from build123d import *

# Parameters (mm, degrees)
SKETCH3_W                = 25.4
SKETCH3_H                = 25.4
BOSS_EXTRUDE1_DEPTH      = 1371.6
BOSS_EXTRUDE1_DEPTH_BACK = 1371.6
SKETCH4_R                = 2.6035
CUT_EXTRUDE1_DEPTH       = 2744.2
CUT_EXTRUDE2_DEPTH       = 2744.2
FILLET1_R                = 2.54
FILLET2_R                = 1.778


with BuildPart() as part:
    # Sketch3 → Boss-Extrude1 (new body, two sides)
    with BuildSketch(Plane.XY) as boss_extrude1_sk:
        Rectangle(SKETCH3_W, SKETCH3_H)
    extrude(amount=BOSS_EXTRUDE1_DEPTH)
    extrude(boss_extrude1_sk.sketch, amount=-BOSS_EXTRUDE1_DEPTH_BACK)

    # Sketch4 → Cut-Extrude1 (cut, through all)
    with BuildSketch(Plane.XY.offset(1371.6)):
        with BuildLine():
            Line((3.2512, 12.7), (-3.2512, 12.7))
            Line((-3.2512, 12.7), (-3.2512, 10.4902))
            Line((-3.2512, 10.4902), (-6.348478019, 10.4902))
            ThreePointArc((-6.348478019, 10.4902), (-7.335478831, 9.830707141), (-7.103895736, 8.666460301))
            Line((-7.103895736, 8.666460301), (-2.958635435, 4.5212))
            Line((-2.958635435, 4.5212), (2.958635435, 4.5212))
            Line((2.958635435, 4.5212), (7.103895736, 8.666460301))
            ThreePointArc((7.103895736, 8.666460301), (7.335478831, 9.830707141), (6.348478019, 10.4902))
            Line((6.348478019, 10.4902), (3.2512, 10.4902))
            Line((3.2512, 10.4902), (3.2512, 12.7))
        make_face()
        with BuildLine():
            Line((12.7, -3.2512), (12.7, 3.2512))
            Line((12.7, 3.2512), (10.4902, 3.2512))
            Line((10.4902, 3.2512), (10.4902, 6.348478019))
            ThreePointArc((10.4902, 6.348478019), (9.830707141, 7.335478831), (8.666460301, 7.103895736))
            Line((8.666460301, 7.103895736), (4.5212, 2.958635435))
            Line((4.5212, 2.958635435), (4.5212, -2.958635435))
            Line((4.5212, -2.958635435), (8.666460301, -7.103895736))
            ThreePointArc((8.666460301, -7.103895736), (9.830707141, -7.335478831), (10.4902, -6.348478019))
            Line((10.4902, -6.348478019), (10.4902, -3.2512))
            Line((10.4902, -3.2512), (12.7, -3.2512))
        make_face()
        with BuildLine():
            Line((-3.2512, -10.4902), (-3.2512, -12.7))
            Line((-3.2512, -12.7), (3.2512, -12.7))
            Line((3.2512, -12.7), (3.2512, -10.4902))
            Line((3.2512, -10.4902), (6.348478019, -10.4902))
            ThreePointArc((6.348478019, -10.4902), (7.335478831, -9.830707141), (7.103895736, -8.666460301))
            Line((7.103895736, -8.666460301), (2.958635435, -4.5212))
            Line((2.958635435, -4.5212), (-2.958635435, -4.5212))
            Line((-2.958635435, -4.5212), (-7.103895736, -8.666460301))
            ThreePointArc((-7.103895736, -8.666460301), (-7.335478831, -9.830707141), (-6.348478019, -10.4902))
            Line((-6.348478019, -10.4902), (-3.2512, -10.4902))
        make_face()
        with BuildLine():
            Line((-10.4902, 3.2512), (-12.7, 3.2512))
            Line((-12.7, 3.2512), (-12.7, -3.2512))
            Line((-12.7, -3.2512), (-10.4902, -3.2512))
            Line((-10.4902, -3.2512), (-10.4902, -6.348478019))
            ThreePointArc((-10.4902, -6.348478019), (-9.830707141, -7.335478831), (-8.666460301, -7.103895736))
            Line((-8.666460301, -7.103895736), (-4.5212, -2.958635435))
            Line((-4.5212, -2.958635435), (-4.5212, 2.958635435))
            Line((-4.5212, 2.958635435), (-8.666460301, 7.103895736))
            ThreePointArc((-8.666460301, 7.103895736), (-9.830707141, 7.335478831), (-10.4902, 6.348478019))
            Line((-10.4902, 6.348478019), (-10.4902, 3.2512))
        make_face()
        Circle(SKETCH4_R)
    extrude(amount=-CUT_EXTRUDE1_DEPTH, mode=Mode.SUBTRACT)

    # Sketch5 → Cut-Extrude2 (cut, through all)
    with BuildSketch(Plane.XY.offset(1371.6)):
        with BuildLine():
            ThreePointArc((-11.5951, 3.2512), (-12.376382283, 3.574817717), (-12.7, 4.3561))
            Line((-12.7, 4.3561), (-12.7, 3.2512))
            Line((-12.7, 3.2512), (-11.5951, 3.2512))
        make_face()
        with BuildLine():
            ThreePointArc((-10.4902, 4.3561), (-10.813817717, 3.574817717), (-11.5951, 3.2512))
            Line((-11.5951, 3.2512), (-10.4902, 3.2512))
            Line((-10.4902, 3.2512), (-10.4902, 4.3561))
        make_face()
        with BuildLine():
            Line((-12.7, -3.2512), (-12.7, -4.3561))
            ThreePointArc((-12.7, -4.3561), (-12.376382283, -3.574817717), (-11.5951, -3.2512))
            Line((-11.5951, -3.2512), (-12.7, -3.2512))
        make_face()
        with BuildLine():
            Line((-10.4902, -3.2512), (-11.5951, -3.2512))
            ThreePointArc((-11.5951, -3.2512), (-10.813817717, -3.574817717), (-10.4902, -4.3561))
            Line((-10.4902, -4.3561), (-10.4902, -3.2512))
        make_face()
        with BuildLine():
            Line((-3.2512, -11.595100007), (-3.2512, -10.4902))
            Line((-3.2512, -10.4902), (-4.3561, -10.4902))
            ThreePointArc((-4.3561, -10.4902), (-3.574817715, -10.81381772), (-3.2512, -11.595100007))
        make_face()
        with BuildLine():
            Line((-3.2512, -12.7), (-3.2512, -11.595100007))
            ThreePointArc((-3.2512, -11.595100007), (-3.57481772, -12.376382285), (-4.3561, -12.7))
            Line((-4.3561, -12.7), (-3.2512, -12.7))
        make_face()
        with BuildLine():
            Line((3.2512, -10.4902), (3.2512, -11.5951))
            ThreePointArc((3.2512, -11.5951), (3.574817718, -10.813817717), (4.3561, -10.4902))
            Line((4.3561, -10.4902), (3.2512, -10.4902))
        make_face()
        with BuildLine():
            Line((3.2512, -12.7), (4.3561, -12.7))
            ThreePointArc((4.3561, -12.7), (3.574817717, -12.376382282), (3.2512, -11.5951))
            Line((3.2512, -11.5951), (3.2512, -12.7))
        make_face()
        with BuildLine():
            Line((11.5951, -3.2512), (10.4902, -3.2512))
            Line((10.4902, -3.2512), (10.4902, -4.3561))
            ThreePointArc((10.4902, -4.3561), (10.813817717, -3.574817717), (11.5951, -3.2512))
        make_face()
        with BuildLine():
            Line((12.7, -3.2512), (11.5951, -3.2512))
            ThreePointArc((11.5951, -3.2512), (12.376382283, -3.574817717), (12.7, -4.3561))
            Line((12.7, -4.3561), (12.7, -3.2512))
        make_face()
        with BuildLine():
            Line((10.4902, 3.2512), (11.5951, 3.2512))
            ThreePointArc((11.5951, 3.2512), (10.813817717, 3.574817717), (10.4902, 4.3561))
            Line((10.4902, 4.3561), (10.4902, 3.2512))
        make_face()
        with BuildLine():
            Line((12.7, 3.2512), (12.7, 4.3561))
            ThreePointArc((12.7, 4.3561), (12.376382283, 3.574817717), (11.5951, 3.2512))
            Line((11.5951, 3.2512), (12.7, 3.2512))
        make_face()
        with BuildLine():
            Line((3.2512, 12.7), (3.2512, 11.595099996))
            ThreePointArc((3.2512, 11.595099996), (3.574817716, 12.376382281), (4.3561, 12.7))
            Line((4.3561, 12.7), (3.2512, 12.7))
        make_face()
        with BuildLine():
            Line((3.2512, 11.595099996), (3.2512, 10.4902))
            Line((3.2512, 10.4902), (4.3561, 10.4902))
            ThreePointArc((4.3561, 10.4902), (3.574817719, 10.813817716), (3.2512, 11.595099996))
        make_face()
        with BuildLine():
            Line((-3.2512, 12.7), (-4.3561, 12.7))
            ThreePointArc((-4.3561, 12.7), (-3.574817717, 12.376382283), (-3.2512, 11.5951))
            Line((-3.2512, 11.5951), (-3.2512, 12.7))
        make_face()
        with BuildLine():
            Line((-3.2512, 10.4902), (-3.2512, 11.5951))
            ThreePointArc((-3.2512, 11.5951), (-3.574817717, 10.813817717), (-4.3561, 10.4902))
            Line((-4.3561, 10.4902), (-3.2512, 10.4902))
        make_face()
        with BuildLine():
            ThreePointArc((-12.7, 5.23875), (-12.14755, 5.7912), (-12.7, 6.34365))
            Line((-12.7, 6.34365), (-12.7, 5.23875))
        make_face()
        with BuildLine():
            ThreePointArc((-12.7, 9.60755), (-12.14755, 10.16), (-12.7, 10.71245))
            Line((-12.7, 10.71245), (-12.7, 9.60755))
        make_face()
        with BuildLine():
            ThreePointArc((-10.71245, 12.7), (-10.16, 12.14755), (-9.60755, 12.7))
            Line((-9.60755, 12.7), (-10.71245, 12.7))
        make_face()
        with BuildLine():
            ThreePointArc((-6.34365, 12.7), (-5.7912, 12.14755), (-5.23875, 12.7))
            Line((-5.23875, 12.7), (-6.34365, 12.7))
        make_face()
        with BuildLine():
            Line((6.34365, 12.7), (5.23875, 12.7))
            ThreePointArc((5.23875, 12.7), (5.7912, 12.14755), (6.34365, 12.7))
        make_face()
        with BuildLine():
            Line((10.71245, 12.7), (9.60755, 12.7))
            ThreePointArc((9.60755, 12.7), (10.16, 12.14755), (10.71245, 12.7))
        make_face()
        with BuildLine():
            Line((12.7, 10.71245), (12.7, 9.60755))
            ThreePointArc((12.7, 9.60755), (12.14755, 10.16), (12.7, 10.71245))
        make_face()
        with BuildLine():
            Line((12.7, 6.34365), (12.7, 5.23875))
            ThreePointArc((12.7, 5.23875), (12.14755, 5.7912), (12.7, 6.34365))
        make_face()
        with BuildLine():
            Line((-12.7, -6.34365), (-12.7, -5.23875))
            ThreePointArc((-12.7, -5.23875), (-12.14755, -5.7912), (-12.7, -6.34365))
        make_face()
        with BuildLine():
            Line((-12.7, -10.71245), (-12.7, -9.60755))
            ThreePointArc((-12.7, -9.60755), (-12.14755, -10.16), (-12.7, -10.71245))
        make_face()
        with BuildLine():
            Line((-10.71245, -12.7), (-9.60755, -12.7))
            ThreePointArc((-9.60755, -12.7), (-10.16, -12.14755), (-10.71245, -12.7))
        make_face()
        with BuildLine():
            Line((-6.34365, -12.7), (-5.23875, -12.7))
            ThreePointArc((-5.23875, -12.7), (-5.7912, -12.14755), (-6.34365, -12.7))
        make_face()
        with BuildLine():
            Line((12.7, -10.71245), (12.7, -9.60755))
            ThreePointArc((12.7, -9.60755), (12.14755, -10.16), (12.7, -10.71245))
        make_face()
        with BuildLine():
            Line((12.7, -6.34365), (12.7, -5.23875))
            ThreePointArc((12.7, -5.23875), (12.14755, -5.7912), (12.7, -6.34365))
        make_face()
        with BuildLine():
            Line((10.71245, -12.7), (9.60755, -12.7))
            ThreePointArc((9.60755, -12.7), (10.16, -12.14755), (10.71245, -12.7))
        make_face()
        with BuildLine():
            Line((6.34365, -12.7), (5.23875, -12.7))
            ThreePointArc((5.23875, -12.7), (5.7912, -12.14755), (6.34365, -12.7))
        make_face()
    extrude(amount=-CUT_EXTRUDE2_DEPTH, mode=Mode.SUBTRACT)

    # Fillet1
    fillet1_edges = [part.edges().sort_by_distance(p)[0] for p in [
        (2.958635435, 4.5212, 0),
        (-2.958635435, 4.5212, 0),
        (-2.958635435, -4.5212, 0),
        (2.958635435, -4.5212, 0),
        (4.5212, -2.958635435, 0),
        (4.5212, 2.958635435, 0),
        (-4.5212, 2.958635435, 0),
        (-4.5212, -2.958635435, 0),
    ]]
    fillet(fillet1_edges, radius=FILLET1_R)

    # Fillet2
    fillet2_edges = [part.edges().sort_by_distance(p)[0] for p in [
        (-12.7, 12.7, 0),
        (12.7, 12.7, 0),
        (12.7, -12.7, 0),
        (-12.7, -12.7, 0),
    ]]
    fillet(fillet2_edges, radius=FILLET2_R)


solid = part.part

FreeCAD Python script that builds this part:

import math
import FreeCAD as App
import Part
import Sketcher
from FreeCAD import Vector
Q = App.Units.Quantity


def edges_at(feature, points):
    """Names of the edges that pass closest to the given points."""
    edges = feature.Shape.Edges
    near = lambda p: min(range(len(edges)), key=lambda i: edges[i].distToShape(Part.Vertex(*p))[0])
    return sorted({f"Edge{near(p) + 1}" for p in points})


def add_polygon(sketch, points):
    """Adds a closed chain of lines whose ends are joined by coincident constraints."""
    first, n = sketch.GeometryCount, len(points)
    for a, b in zip(points, points[1:] + points[:1]):
        sketch.addGeometry(Part.LineSegment(App.Vector(*a, 0), App.Vector(*b, 0)), False)
    for i in range(n):
        sketch.addConstraint(Sketcher.Constraint("Coincident", first + i, 2, first + (i + 1) % n, 1))

doc = App.newDocument("Part")
body = doc.addObject("PartDesign::Body", "Body")

# Sketch on XY plane
sketch1 = body.newObject("Sketcher::SketchObject", "Sketch")
sketch1.AttachmentSupport = (doc.getObject("XY_Plane"), [""])
sketch1.MapMode = "FlatFace"
add_polygon(sketch1, [(-13, 13), (-13, -13), (13, -13), (13, 13)])  # lines 0-3
sketch1.addConstraint([
    Sketcher.Constraint("Vertical", 0),
    Sketcher.Constraint("Horizontal", 1),
    Sketcher.Constraint("Vertical", 2),
    Sketcher.Constraint("Horizontal", 3),
    Sketcher.Constraint("Symmetric", 0, 2, 2, 2, -1, 1),
    Sketcher.Constraint("Equal", 3, 0),
    Sketcher.Constraint("DistanceX", 1, 1, 1, 2, Q("1 in")),
])
pad1 = body.newObject("PartDesign::Pad", "Pad")
pad1.Profile = sketch1
pad1.Type = "TwoLengths"
pad1.Length = Q("54 in")
pad1.Length2 = Q("54 in")

# Sketch on XY plane
sketch2 = body.newObject("Sketcher::SketchObject", "Sketch001")
sketch2.AttachmentSupport = (doc.getObject("XY_Plane"), [""])
sketch2.MapMode = "FlatFace"
sketch2.AttachmentOffset = App.Placement(Vector(0, 0, 54 * 25.4), App.Rotation())
sketch2.addGeometry([
    Part.LineSegment(Vector(3.3, 12.7, 0), Vector(-3.3, 12.7, 0)),  # 0
    Part.LineSegment(Vector(-3.3, 12.7, 0), Vector(-3.3, 10.5, 0)),  # 1
    Part.LineSegment(Vector(-3.3, 10.5, 0), Vector(-6.3, 10.5, 0)),  # 2
    Part.ArcOfCircle(Part.Circle(Vector(-6.3, 9.4, 0), Vector(0, 0, 1), 1.1), math.radians(90), math.radians(225)),  # 3
    Part.LineSegment(Vector(-7.1, 8.7, 0), Vector(-3, 4.5, 0)),  # 4
    Part.LineSegment(Vector(-3, 4.5, 0), Vector(3, 4.5, 0)),  # 5
    Part.LineSegment(Vector(3, 4.5, 0), Vector(7.1, 8.7, 0)),  # 6
    Part.ArcOfCircle(Part.Circle(Vector(6.3, 9.4, 0), Vector(0, 0, 1), 1.1), math.radians(-45), math.radians(90)),  # 7
    Part.LineSegment(Vector(6.3, 10.5, 0), Vector(3.3, 10.5, 0)),  # 8
    Part.LineSegment(Vector(3.3, 10.5, 0), Vector(3.3, 12.7, 0)),  # 9
    Part.LineSegment(Vector(12.7, -3.3, 0), Vector(12.7, 3.3, 0)),  # 10
    Part.LineSegment(Vector(12.7, 3.3, 0), Vector(10.5, 3.3, 0)),  # 11
    Part.LineSegment(Vector(10.5, 3.3, 0), Vector(10.5, 6.3, 0)),  # 12
    Part.ArcOfCircle(Part.Circle(Vector(9.4, 6.3, 0), Vector(0, 0, 1), 1.1), math.radians(0), math.radians(135)),  # 13
    Part.LineSegment(Vector(8.7, 7.1, 0), Vector(4.5, 3, 0)),  # 14
    Part.LineSegment(Vector(4.5, 3, 0), Vector(4.5, -3, 0)),  # 15
    Part.LineSegment(Vector(4.5, -3, 0), Vector(8.7, -7.1, 0)),  # 16
    Part.ArcOfCircle(Part.Circle(Vector(9.4, -6.3, 0), Vector(0, 0, 1), 1.1), math.radians(-135), math.radians(0)),  # 17
    Part.LineSegment(Vector(10.5, -6.3, 0), Vector(10.5, -3.3, 0)),  # 18
    Part.LineSegment(Vector(10.5, -3.3, 0), Vector(12.7, -3.3, 0)),  # 19
    Part.LineSegment(Vector(-3.3, -10.5, 0), Vector(-3.3, -12.7, 0)),  # 20
    Part.LineSegment(Vector(-3.3, -12.7, 0), Vector(3.3, -12.7, 0)),  # 21
    Part.LineSegment(Vector(3.3, -12.7, 0), Vector(3.3, -10.5, 0)),  # 22
    Part.LineSegment(Vector(3.3, -10.5, 0), Vector(6.3, -10.5, 0)),  # 23
    Part.ArcOfCircle(Part.Circle(Vector(6.3, -9.4, 0), Vector(0, 0, 1), 1.1), math.radians(-90), math.radians(45)),  # 24
    Part.LineSegment(Vector(7.1, -8.7, 0), Vector(3, -4.5, 0)),  # 25
    Part.LineSegment(Vector(3, -4.5, 0), Vector(-3, -4.5, 0)),  # 26
    Part.LineSegment(Vector(-3, -4.5, 0), Vector(-7.1, -8.7, 0)),  # 27
    Part.ArcOfCircle(Part.Circle(Vector(-6.3, -9.4, 0), Vector(0, 0, 1), 1.1), math.radians(135), math.radians(270)),  # 28
    Part.LineSegment(Vector(-6.3, -10.5, 0), Vector(-3.3, -10.5, 0)),  # 29
    Part.LineSegment(Vector(-10.5, 3.3, 0), Vector(-12.7, 3.3, 0)),  # 30
    Part.LineSegment(Vector(-12.7, 3.3, 0), Vector(-12.7, -3.3, 0)),  # 31
    Part.LineSegment(Vector(-12.7, -3.3, 0), Vector(-10.5, -3.3, 0)),  # 32
    Part.LineSegment(Vector(-10.5, -3.3, 0), Vector(-10.5, -6.3, 0)),  # 33
    Part.ArcOfCircle(Part.Circle(Vector(-9.4, -6.3, 0), Vector(0, 0, 1), 1.1), math.radians(-180), math.radians(-45)),  # 34
    Part.LineSegment(Vector(-8.7, -7.1, 0), Vector(-4.5, -3, 0)),  # 35
    Part.LineSegment(Vector(-4.5, -3, 0), Vector(-4.5, 3, 0)),  # 36
    Part.LineSegment(Vector(-4.5, 3, 0), Vector(-8.7, 7.1, 0)),  # 37
    Part.ArcOfCircle(Part.Circle(Vector(-9.4, 6.3, 0), Vector(0, 0, 1), 1.1), math.radians(45), math.radians(180)),  # 38
    Part.LineSegment(Vector(-10.5, 6.3, 0), Vector(-10.5, 3.3, 0)),  # 39
    Part.Circle(Vector(0, 0, 0), Vector(0, 0, 1), 2.6),  # 40
], False)
sketch2.addConstraint([
    Sketcher.Constraint("Coincident", 0, 2, 1, 1),
    Sketcher.Constraint("Coincident", 1, 2, 2, 1),
    Sketcher.Constraint("Tangent", 2, 2, 3, 1),
    Sketcher.Constraint("Tangent", 3, 2, 4, 1),
    Sketcher.Constraint("Coincident", 4, 2, 5, 1),
    Sketcher.Constraint("Coincident", 5, 2, 6, 1),
    Sketcher.Constraint("Tangent", 6, 2, 7, 1),
    Sketcher.Constraint("Tangent", 7, 2, 8, 1),
    Sketcher.Constraint("Coincident", 8, 2, 9, 1),
    Sketcher.Constraint("Coincident", 9, 2, 0, 1),
    Sketcher.Constraint("Coincident", 10, 2, 11, 1),
    Sketcher.Constraint("Coincident", 11, 2, 12, 1),
    Sketcher.Constraint("Tangent", 12, 2, 13, 1),
    Sketcher.Constraint("Tangent", 13, 2, 14, 1),
    Sketcher.Constraint("Coincident", 14, 2, 15, 1),
    Sketcher.Constraint("Coincident", 15, 2, 16, 1),
    Sketcher.Constraint("Tangent", 16, 2, 17, 1),
    Sketcher.Constraint("Tangent", 17, 2, 18, 1),
    Sketcher.Constraint("Coincident", 18, 2, 19, 1),
    Sketcher.Constraint("Coincident", 19, 2, 10, 1),
    Sketcher.Constraint("Coincident", 20, 2, 21, 1),
    Sketcher.Constraint("Coincident", 21, 2, 22, 1),
    Sketcher.Constraint("Coincident", 22, 2, 23, 1),
    Sketcher.Constraint("Tangent", 23, 2, 24, 1),
    Sketcher.Constraint("Tangent", 24, 2, 25, 1),
    Sketcher.Constraint("Coincident", 25, 2, 26, 1),
    Sketcher.Constraint("Coincident", 26, 2, 27, 1),
    Sketcher.Constraint("Tangent", 27, 2, 28, 1),
    Sketcher.Constraint("Tangent", 28, 2, 29, 1),
    Sketcher.Constraint("Coincident", 29, 2, 20, 1),
    Sketcher.Constraint("Coincident", 30, 2, 31, 1),
    Sketcher.Constraint("Coincident", 31, 2, 32, 1),
    Sketcher.Constraint("Coincident", 32, 2, 33, 1),
    Sketcher.Constraint("Tangent", 33, 2, 34, 1),
    Sketcher.Constraint("Tangent", 34, 2, 35, 1),
    Sketcher.Constraint("Coincident", 35, 2, 36, 1),
    Sketcher.Constraint("Coincident", 36, 2, 37, 1),
    Sketcher.Constraint("Tangent", 37, 2, 38, 1),
    Sketcher.Constraint("Tangent", 38, 2, 39, 1),
    Sketcher.Constraint("Coincident", 39, 2, 30, 1),
    Sketcher.Constraint("Horizontal", 0),
    Sketcher.Constraint("Vertical", 1),
    Sketcher.Constraint("Horizontal", 2),
    Sketcher.Constraint("Horizontal", 5),
    Sketcher.Constraint("Horizontal", 8),
    Sketcher.Constraint("Vertical", 9),
    Sketcher.Constraint("Vertical", 10),
    Sketcher.Constraint("Horizontal", 11),
    Sketcher.Constraint("Vertical", 12),
    Sketcher.Constraint("Vertical", 15),
    Sketcher.Constraint("Vertical", 18),
    Sketcher.Constraint("Horizontal", 19),
    Sketcher.Constraint("Vertical", 20),
    Sketcher.Constraint("Horizontal", 21),
    Sketcher.Constraint("Vertical", 22),
    Sketcher.Constraint("Horizontal", 23),
    Sketcher.Constraint("Horizontal", 26),
    Sketcher.Constraint("Horizontal", 29),
    Sketcher.Constraint("Horizontal", 30),
    Sketcher.Constraint("Vertical", 31),
    Sketcher.Constraint("Horizontal", 32),
    Sketcher.Constraint("Vertical", 33),
    Sketcher.Constraint("Vertical", 36),
    Sketcher.Constraint("Vertical", 39),
    Sketcher.Constraint("Coincident", 40, 3, -1, 1),
    Sketcher.Constraint("Equal", 3, 7),
    Sketcher.Constraint("Equal", 7, 13),
    Sketcher.Constraint("Equal", 13, 17),
    Sketcher.Constraint("Equal", 17, 24),
    Sketcher.Constraint("Equal", 24, 28),
    Sketcher.Constraint("Equal", 28, 34),
    Sketcher.Constraint("Equal", 34, 38),
    Sketcher.Constraint("Symmetric", 3, 3, 24, 3, -1, 1),
    Sketcher.Constraint("Symmetric", 7, 3, 28, 3, -1, 1),
    Sketcher.Constraint("Symmetric", 13, 3, 34, 3, -1, 1),
    Sketcher.Constraint("Symmetric", 17, 3, 38, 3, -1, 1),
    Sketcher.Constraint("Symmetric", 9, 2, 20, 2, -1, 1),
    Sketcher.Constraint("Symmetric", 4, 2, 25, 2, -1, 1),
    Sketcher.Constraint("Symmetric", 19, 2, 30, 2, -1, 1),
    Sketcher.Constraint("Symmetric", 14, 2, 35, 2, -1, 1),
    Sketcher.Constraint("Symmetric", 3, 3, 7, 3, -2),
    Sketcher.Constraint("Symmetric", 17, 3, 34, 3, -2),
    Sketcher.Constraint("Perpendicular", 4, 6),
    Sketcher.Constraint("Parallel", 6, 14),
    Sketcher.Constraint("Perpendicular", 14, 16),
    Sketcher.Constraint("Perpendicular", 25, 27),
    Sketcher.Constraint("Perpendicular", 35, 37),
    Sketcher.Constraint("Horizontal", 3, 2, 6, 2),
    Sketcher.Constraint("Horizontal", 11, 2, 30, 2),
    Sketcher.Constraint("Horizontal", 19, 2, 31, 2),
    Sketcher.Constraint("Vertical", 1, 2, 20, 2),
    Sketcher.Constraint("Vertical", 9, 2, 21, 2),
    Sketcher.Constraint("Equal", 32, 1),
    Sketcher.Constraint("Equal", 21, 10),
    Sketcher.Constraint("Equal", 29, 12),
    Sketcher.Constraint("Equal", 26, 15),
    Sketcher.Constraint("Diameter", 40, Q("0.205 in")),
    Sketcher.Constraint("DistanceY", -1, 1, 0, 2, Q("0.5 in")),
    Sketcher.Constraint("DistanceX", -1, 1, 10, 2, Q("0.5 in")),
    Sketcher.Constraint("DistanceX", 0, 2, 0, 1, Q("0.256 in")),
    Sketcher.Constraint("DistanceX", 11, 2, 11, 1, Q("0.087 in")),
    Sketcher.Constraint("DistanceY", 10, 2, 5, 2, Q("0.05 in")),
    Sketcher.Constraint("Radius", 3, 1.068322),
    Sketcher.Constraint("DistanceX", 7, 3, 13, 3, Q("0.121 in")),
])
pocket1 = body.newObject("PartDesign::Pocket", "Pocket")
pocket1.Profile = sketch2
pocket1.Type = "ThroughAll"

# Sketch on XY plane
sketch3 = body.newObject("Sketcher::SketchObject", "Sketch002")
sketch3.AttachmentSupport = (doc.getObject("XY_Plane"), [""])
sketch3.MapMode = "FlatFace"
sketch3.AttachmentOffset = App.Placement(Vector(0, 0, 54 * 25.4), App.Rotation())
sketch3.addGeometry([
    Part.ArcOfCircle(Part.Circle(Vector(-11.6, 4.4, 0), Vector(0, 0, 1), 1.1), math.radians(180), math.radians(270)),  # 0
    Part.LineSegment(Vector(-12.7, 4.4, 0), Vector(-12.7, 3.3, 0)),  # 1
    Part.LineSegment(Vector(-12.7, 3.3, 0), Vector(-11.6, 3.3, 0)),  # 2
    Part.ArcOfCircle(Part.Circle(Vector(-11.6, 4.4, 0), Vector(0, 0, 1), 1.1), math.radians(-90), math.radians(0)),  # 3
    Part.LineSegment(Vector(-11.6, 3.3, 0), Vector(-10.5, 3.3, 0)),  # 4
    Part.LineSegment(Vector(-10.5, 3.3, 0), Vector(-10.5, 4.4, 0)),  # 5
    Part.LineSegment(Vector(-12.7, -3.3, 0), Vector(-12.7, -4.4, 0)),  # 6
    Part.ArcOfCircle(Part.Circle(Vector(-11.6, -4.4, 0), Vector(0, 0, 1), 1.1), math.radians(90), math.radians(180)),  # 7
    Part.LineSegment(Vector(-11.6, -3.3, 0), Vector(-12.7, -3.3, 0)),  # 8
    Part.LineSegment(Vector(-10.5, -3.3, 0), Vector(-11.6, -3.3, 0)),  # 9
    Part.ArcOfCircle(Part.Circle(Vector(-11.6, -4.4, 0), Vector(0, 0, 1), 1.1), math.radians(0), math.radians(90)),  # 10
    Part.LineSegment(Vector(-10.5, -4.4, 0), Vector(-10.5, -3.3, 0)),  # 11
    Part.LineSegment(Vector(-3.3, -11.6, 0), Vector(-3.3, -10.5, 0)),  # 12
    Part.LineSegment(Vector(-3.3, -10.5, 0), Vector(-4.4, -10.5, 0)),  # 13
    Part.ArcOfCircle(Part.Circle(Vector(-4.4, -11.6, 0), Vector(0, 0, 1), 1.1), math.radians(0), math.radians(90)),  # 14
    Part.LineSegment(Vector(-3.3, -12.7, 0), Vector(-3.3, -11.6, 0)),  # 15
    Part.ArcOfCircle(Part.Circle(Vector(-4.4, -11.6, 0), Vector(0, 0, 1), 1.1), math.radians(-90), math.radians(0)),  # 16
    Part.LineSegment(Vector(-4.4, -12.7, 0), Vector(-3.3, -12.7, 0)),  # 17
    Part.LineSegment(Vector(3.3, -10.5, 0), Vector(3.3, -11.6, 0)),  # 18
    Part.ArcOfCircle(Part.Circle(Vector(4.4, -11.6, 0), Vector(0, 0, 1), 1.1), math.radians(90), math.radians(180)),  # 19
    Part.LineSegment(Vector(4.4, -10.5, 0), Vector(3.3, -10.5, 0)),  # 20
    Part.LineSegment(Vector(3.3, -12.7, 0), Vector(4.4, -12.7, 0)),  # 21
    Part.ArcOfCircle(Part.Circle(Vector(4.4, -11.6, 0), Vector(0, 0, 1), 1.1), math.radians(180), math.radians(270)),  # 22
    Part.LineSegment(Vector(3.3, -11.6, 0), Vector(3.3, -12.7, 0)),  # 23
    Part.LineSegment(Vector(11.6, -3.3, 0), Vector(10.5, -3.3, 0)),  # 24
    Part.LineSegment(Vector(10.5, -3.3, 0), Vector(10.5, -4.4, 0)),  # 25
    Part.ArcOfCircle(Part.Circle(Vector(11.6, -4.4, 0), Vector(0, 0, 1), 1.1), math.radians(90), math.radians(180)),  # 26
    Part.LineSegment(Vector(12.7, -3.3, 0), Vector(11.6, -3.3, 0)),  # 27
    Part.ArcOfCircle(Part.Circle(Vector(11.6, -4.4, 0), Vector(0, 0, 1), 1.1), math.radians(0), math.radians(90)),  # 28
    Part.LineSegment(Vector(12.7, -4.4, 0), Vector(12.7, -3.3, 0)),  # 29
    Part.LineSegment(Vector(10.5, 3.3, 0), Vector(11.6, 3.3, 0)),  # 30
    Part.ArcOfCircle(Part.Circle(Vector(11.6, 4.4, 0), Vector(0, 0, 1), 1.1), math.radians(180), math.radians(270)),  # 31
    Part.LineSegment(Vector(10.5, 4.4, 0), Vector(10.5, 3.3, 0)),  # 32
    Part.LineSegment(Vector(12.7, 3.3, 0), Vector(12.7, 4.4, 0)),  # 33
    Part.ArcOfCircle(Part.Circle(Vector(11.6, 4.4, 0), Vector(0, 0, 1), 1.1), math.radians(-90), math.radians(0)),  # 34
    Part.LineSegment(Vector(11.6, 3.3, 0), Vector(12.7, 3.3, 0)),  # 35
    Part.LineSegment(Vector(3.3, 12.7, 0), Vector(3.3, 11.6, 0)),  # 36
    Part.ArcOfCircle(Part.Circle(Vector(4.4, 11.6, 0), Vector(0, 0, 1), 1.1), math.radians(90), math.radians(180)),  # 37
    Part.LineSegment(Vector(4.4, 12.7, 0), Vector(3.3, 12.7, 0)),  # 38
    Part.LineSegment(Vector(3.3, 11.6, 0), Vector(3.3, 10.5, 0)),  # 39
    Part.LineSegment(Vector(3.3, 10.5, 0), Vector(4.4, 10.5, 0)),  # 40
    Part.ArcOfCircle(Part.Circle(Vector(4.4, 11.6, 0), Vector(0, 0, 1), 1.1), math.radians(-180), math.radians(-90)),  # 41
    Part.LineSegment(Vector(-3.3, 12.7, 0), Vector(-4.4, 12.7, 0)),  # 42
    Part.ArcOfCircle(Part.Circle(Vector(-4.4, 11.6, 0), Vector(0, 0, 1), 1.1), math.radians(0), math.radians(90)),  # 43
    Part.LineSegment(Vector(-3.3, 11.6, 0), Vector(-3.3, 12.7, 0)),  # 44
    Part.LineSegment(Vector(-3.3, 10.5, 0), Vector(-3.3, 11.6, 0)),  # 45
    Part.ArcOfCircle(Part.Circle(Vector(-4.4, 11.6, 0), Vector(0, 0, 1), 1.1), math.radians(-90), math.radians(0)),  # 46
    Part.LineSegment(Vector(-4.4, 10.5, 0), Vector(-3.3, 10.5, 0)),  # 47
    Part.ArcOfCircle(Part.Circle(Vector(-12.7, 5.8, 0), Vector(0, 0, 1), 0.6), math.radians(-90), math.radians(90)),  # 48
    Part.LineSegment(Vector(-12.7, 6.3, 0), Vector(-12.7, 5.2, 0)),  # 49
    Part.ArcOfCircle(Part.Circle(Vector(-12.7, 10.2, 0), Vector(0, 0, 1), 0.6), math.radians(-90), math.radians(90)),  # 50
    Part.LineSegment(Vector(-12.7, 10.7, 0), Vector(-12.7, 9.6, 0)),  # 51
    Part.ArcOfCircle(Part.Circle(Vector(-10.2, 12.7, 0), Vector(0, 0, 1), 0.6), math.radians(180), math.radians(360)),  # 52
    Part.LineSegment(Vector(-9.6, 12.7, 0), Vector(-10.7, 12.7, 0)),  # 53
    Part.ArcOfCircle(Part.Circle(Vector(-5.8, 12.7, 0), Vector(0, 0, 1), 0.6), math.radians(180), math.radians(360)),  # 54
    Part.LineSegment(Vector(-5.2, 12.7, 0), Vector(-6.3, 12.7, 0)),  # 55
    Part.LineSegment(Vector(6.3, 12.7, 0), Vector(5.2, 12.7, 0)),  # 56
    Part.ArcOfCircle(Part.Circle(Vector(5.8, 12.7, 0), Vector(0, 0, 1), 0.6), math.radians(180), math.radians(360)),  # 57
    Part.LineSegment(Vector(10.7, 12.7, 0), Vector(9.6, 12.7, 0)),  # 58
    Part.ArcOfCircle(Part.Circle(Vector(10.2, 12.7, 0), Vector(0, 0, 1), 0.6), math.radians(180), math.radians(360)),  # 59
    Part.LineSegment(Vector(12.7, 9.6, 0), Vector(12.7, 10.7, 0)),  # 60
    Part.ArcOfCircle(Part.Circle(Vector(12.7, 10.2, 0), Vector(0, 0, 1), 0.6), math.radians(90), math.radians(270)),  # 61
    Part.LineSegment(Vector(12.7, 5.2, 0), Vector(12.7, 6.3, 0)),  # 62
    Part.ArcOfCircle(Part.Circle(Vector(12.7, 5.8, 0), Vector(0, 0, 1), 0.6), math.radians(90), math.radians(270)),  # 63
    Part.LineSegment(Vector(-12.7, -5.2, 0), Vector(-12.7, -6.3, 0)),  # 64
    Part.ArcOfCircle(Part.Circle(Vector(-12.7, -5.8, 0), Vector(0, 0, 1), 0.6), math.radians(-90), math.radians(90)),  # 65
    Part.LineSegment(Vector(-12.7, -9.6, 0), Vector(-12.7, -10.7, 0)),  # 66
    Part.ArcOfCircle(Part.Circle(Vector(-12.7, -10.2, 0), Vector(0, 0, 1), 0.6), math.radians(-90), math.radians(90)),  # 67
    Part.LineSegment(Vector(-10.7, -12.7, 0), Vector(-9.6, -12.7, 0)),  # 68
    Part.ArcOfCircle(Part.Circle(Vector(-10.2, -12.7, 0), Vector(0, 0, 1), 0.6), math.radians(0), math.radians(180)),  # 69
    Part.LineSegment(Vector(-6.3, -12.7, 0), Vector(-5.2, -12.7, 0)),  # 70
    Part.ArcOfCircle(Part.Circle(Vector(-5.8, -12.7, 0), Vector(0, 0, 1), 0.6), math.radians(0), math.radians(180)),  # 71
    Part.LineSegment(Vector(12.7, -10.7, 0), Vector(12.7, -9.6, 0)),  # 72
    Part.ArcOfCircle(Part.Circle(Vector(12.7, -10.2, 0), Vector(0, 0, 1), 0.6), math.radians(90), math.radians(270)),  # 73
    Part.LineSegment(Vector(12.7, -6.3, 0), Vector(12.7, -5.2, 0)),  # 74
    Part.ArcOfCircle(Part.Circle(Vector(12.7, -5.8, 0), Vector(0, 0, 1), 0.6), math.radians(90), math.radians(270)),  # 75
    Part.LineSegment(Vector(9.6, -12.7, 0), Vector(10.7, -12.7, 0)),  # 76
    Part.ArcOfCircle(Part.Circle(Vector(10.2, -12.7, 0), Vector(0, 0, 1), 0.6), math.radians(0), math.radians(180)),  # 77
    Part.LineSegment(Vector(5.2, -12.7, 0), Vector(6.3, -12.7, 0)),  # 78
    Part.ArcOfCircle(Part.Circle(Vector(5.8, -12.7, 0), Vector(0, 0, 1), 0.6), math.radians(0), math.radians(180)),  # 79
], False)
sketch3.addConstraint([
    Sketcher.Constraint("Tangent", 0, 1, 1, 1),
    Sketcher.Constraint("Coincident", 1, 2, 2, 1),
    Sketcher.Constraint("Tangent", 2, 2, 0, 2),
    Sketcher.Constraint("Tangent", 3, 1, 4, 1),
    Sketcher.Constraint("Coincident", 4, 2, 5, 1),
    Sketcher.Constraint("Tangent", 5, 2, 3, 2),
    Sketcher.Constraint("Tangent", 6, 2, 7, 2),
    Sketcher.Constraint("Tangent", 7, 1, 8, 1),
    Sketcher.Constraint("Coincident", 8, 2, 6, 1),
    Sketcher.Constraint("Tangent", 9, 2, 10, 2),
    Sketcher.Constraint("Tangent", 10, 1, 11, 1),
    Sketcher.Constraint("Coincident", 11, 2, 9, 1),
    Sketcher.Constraint("Coincident", 12, 2, 13, 1),
    Sketcher.Constraint("Tangent", 13, 2, 14, 2),
    Sketcher.Constraint("Tangent", 14, 1, 12, 1),
    Sketcher.Constraint("Tangent", 15, 2, 16, 2),
    Sketcher.Constraint("Tangent", 16, 1, 17, 1),
    Sketcher.Constraint("Coincident", 17, 2, 15, 1),
    Sketcher.Constraint("Tangent", 18, 2, 19, 2),
    Sketcher.Constraint("Tangent", 19, 1, 20, 1),
    Sketcher.Constraint("Coincident", 20, 2, 18, 1),
    Sketcher.Constraint("Tangent", 21, 2, 22, 2),
    Sketcher.Constraint("Tangent", 22, 1, 23, 1),
    Sketcher.Constraint("Coincident", 23, 2, 21, 1),
    Sketcher.Constraint("Coincident", 24, 2, 25, 1),
    Sketcher.Constraint("Tangent", 25, 2, 26, 2),
    Sketcher.Constraint("Tangent", 26, 1, 24, 1),
    Sketcher.Constraint("Tangent", 27, 2, 28, 2),
    Sketcher.Constraint("Tangent", 28, 1, 29, 1),
    Sketcher.Constraint("Coincident", 29, 2, 27, 1),
    Sketcher.Constraint("Tangent", 30, 2, 31, 2),
    Sketcher.Constraint("Tangent", 31, 1, 32, 1),
    Sketcher.Constraint("Coincident", 32, 2, 30, 1),
    Sketcher.Constraint("Tangent", 33, 2, 34, 2),
    Sketcher.Constraint("Tangent", 34, 1, 35, 1),
    Sketcher.Constraint("Coincident", 35, 2, 33, 1),
    Sketcher.Constraint("Tangent", 36, 2, 37, 2),
    Sketcher.Constraint("Tangent", 37, 1, 38, 1),
    Sketcher.Constraint("Coincident", 38, 2, 36, 1),
    Sketcher.Constraint("Coincident", 39, 2, 40, 1),
    Sketcher.Constraint("Tangent", 40, 2, 41, 2),
    Sketcher.Constraint("Tangent", 41, 1, 39, 1),
    Sketcher.Constraint("Tangent", 42, 2, 43, 2),
    Sketcher.Constraint("Tangent", 43, 1, 44, 1),
    Sketcher.Constraint("Coincident", 44, 2, 42, 1),
    Sketcher.Constraint("Tangent", 45, 2, 46, 2),
    Sketcher.Constraint("Tangent", 46, 1, 47, 1),
    Sketcher.Constraint("Coincident", 47, 2, 45, 1),
    Sketcher.Constraint("Coincident", 48, 1, 49, 2),
    Sketcher.Constraint("Coincident", 49, 1, 48, 2),
    Sketcher.Constraint("Coincident", 50, 1, 51, 2),
    Sketcher.Constraint("Coincident", 51, 1, 50, 2),
    Sketcher.Constraint("Coincident", 52, 1, 53, 2),
    Sketcher.Constraint("Coincident", 53, 1, 52, 2),
    Sketcher.Constraint("Coincident", 54, 1, 55, 2),
    Sketcher.Constraint("Coincident", 55, 1, 54, 2),
    Sketcher.Constraint("Coincident", 56, 1, 57, 2),
    Sketcher.Constraint("Coincident", 57, 1, 56, 2),
    Sketcher.Constraint("Coincident", 58, 1, 59, 2),
    Sketcher.Constraint("Coincident", 59, 1, 58, 2),
    Sketcher.Constraint("Coincident", 60, 1, 61, 2),
    Sketcher.Constraint("Coincident", 61, 1, 60, 2),
    Sketcher.Constraint("Coincident", 62, 1, 63, 2),
    Sketcher.Constraint("Coincident", 63, 1, 62, 2),
    Sketcher.Constraint("Coincident", 64, 1, 65, 2),
    Sketcher.Constraint("Coincident", 65, 1, 64, 2),
    Sketcher.Constraint("Coincident", 66, 1, 67, 2),
    Sketcher.Constraint("Coincident", 67, 1, 66, 2),
    Sketcher.Constraint("Coincident", 68, 1, 69, 2),
    Sketcher.Constraint("Coincident", 69, 1, 68, 2),
    Sketcher.Constraint("Coincident", 70, 1, 71, 2),
    Sketcher.Constraint("Coincident", 71, 1, 70, 2),
    Sketcher.Constraint("Coincident", 72, 1, 73, 2),
    Sketcher.Constraint("Coincident", 73, 1, 72, 2),
    Sketcher.Constraint("Coincident", 74, 1, 75, 2),
    Sketcher.Constraint("Coincident", 75, 1, 74, 2),
    Sketcher.Constraint("Coincident", 76, 1, 77, 2),
    Sketcher.Constraint("Coincident", 77, 1, 76, 2),
    Sketcher.Constraint("Coincident", 78, 1, 79, 2),
    Sketcher.Constraint("Coincident", 79, 1, 78, 2),
    Sketcher.Constraint("Vertical", 1),
    Sketcher.Constraint("Horizontal", 2),
    Sketcher.Constraint("Horizontal", 4),
    Sketcher.Constraint("Vertical", 5),
    Sketcher.Constraint("Vertical", 6),
    Sketcher.Constraint("Horizontal", 8),
    Sketcher.Constraint("Horizontal", 9),
    Sketcher.Constraint("Vertical", 11),
    Sketcher.Constraint("Vertical", 12),
    Sketcher.Constraint("Horizontal", 13),
    Sketcher.Constraint("Vertical", 15),
    Sketcher.Constraint("Horizontal", 17),
    Sketcher.Constraint("Vertical", 18),
    Sketcher.Constraint("Horizontal", 20),
    Sketcher.Constraint("Horizontal", 21),
    Sketcher.Constraint("Vertical", 23),
    Sketcher.Constraint("Horizontal", 24),
    Sketcher.Constraint("Vertical", 25),
    Sketcher.Constraint("Horizontal", 27),
    Sketcher.Constraint("Vertical", 29),
    Sketcher.Constraint("Horizontal", 30),
    Sketcher.Constraint("Vertical", 32),
    Sketcher.Constraint("Vertical", 33),
    Sketcher.Constraint("Horizontal", 35),
    Sketcher.Constraint("Vertical", 36),
    Sketcher.Constraint("Horizontal", 38),
    Sketcher.Constraint("Vertical", 39),
    Sketcher.Constraint("Horizontal", 40),
    Sketcher.Constraint("Horizontal", 42),
    Sketcher.Constraint("Vertical", 44),
    Sketcher.Constraint("Vertical", 45),
    Sketcher.Constraint("Horizontal", 47),
    Sketcher.Constraint("Vertical", 49),
    Sketcher.Constraint("Vertical", 51),
    Sketcher.Constraint("Horizontal", 53),
    Sketcher.Constraint("Horizontal", 55),
    Sketcher.Constraint("Horizontal", 56),
    Sketcher.Constraint("Horizontal", 58),
    Sketcher.Constraint("Vertical", 60),
    Sketcher.Constraint("Vertical", 62),
    Sketcher.Constraint("Vertical", 64),
    Sketcher.Constraint("Vertical", 66),
    Sketcher.Constraint("Horizontal", 68),
    Sketcher.Constraint("Horizontal", 70),
    Sketcher.Constraint("Vertical", 72),
    Sketcher.Constraint("Vertical", 74),
    Sketcher.Constraint("Horizontal", 76),
    Sketcher.Constraint("Horizontal", 78),
    Sketcher.Constraint("Coincident", 3, 3, 0, 3),
    Sketcher.Constraint("Coincident", 10, 3, 7, 3),
    Sketcher.Constraint("Coincident", 16, 3, 14, 3),
    Sketcher.Constraint("Coincident", 22, 3, 19, 3),
    Sketcher.Constraint("Coincident", 28, 3, 26, 3),
    Sketcher.Constraint("Coincident", 34, 3, 31, 3),
    Sketcher.Constraint("Coincident", 41, 3, 37, 3),
    Sketcher.Constraint("Coincident", 46, 3, 43, 3),
    Sketcher.Constraint("Equal", 0, 3),
    Sketcher.Constraint("Equal", 3, 7),
    Sketcher.Constraint("Equal", 7, 10),
    Sketcher.Constraint("Equal", 10, 14),
    Sketcher.Constraint("Equal", 14, 16),
    Sketcher.Constraint("Equal", 16, 19),
    Sketcher.Constraint("Equal", 19, 22),
    Sketcher.Constraint("Equal", 22, 26),
    Sketcher.Constraint("Equal", 26, 28),
    Sketcher.Constraint("Equal", 28, 31),
    Sketcher.Constraint("Equal", 31, 34),
    Sketcher.Constraint("Equal", 34, 37),
    Sketcher.Constraint("Equal", 37, 41),
    Sketcher.Constraint("Equal", 41, 43),
    Sketcher.Constraint("Equal", 43, 46),
    Sketcher.Constraint("Equal", 48, 50),
    Sketcher.Constraint("Equal", 50, 52),
    Sketcher.Constraint("Equal", 52, 54),
    Sketcher.Constraint("Equal", 54, 57),
    Sketcher.Constraint("Equal", 57, 59),
    Sketcher.Constraint("Equal", 59, 61),
    Sketcher.Constraint("Equal", 61, 63),
    Sketcher.Constraint("Equal", 63, 65),
    Sketcher.Constraint("Equal", 65, 67),
    Sketcher.Constraint("Equal", 67, 69),
    Sketcher.Constraint("Equal", 69, 71),
    Sketcher.Constraint("Equal", 71, 73),
    Sketcher.Constraint("Equal", 73, 75),
    Sketcher.Constraint("Equal", 75, 77),
    Sketcher.Constraint("Equal", 77, 79),
    Sketcher.Constraint("Symmetric", 0, 3, 26, 3, -1, 1),
    Sketcher.Constraint("Symmetric", 7, 3, 31, 3, -1, 1),
    Sketcher.Constraint("Symmetric", 14, 3, 37, 3, -1, 1),
    Sketcher.Constraint("Symmetric", 19, 3, 43, 3, -1, 1),
    Sketcher.Constraint("Symmetric", 63, 3, 65, 3, -1, 1),
    Sketcher.Constraint("Symmetric", 61, 3, 67, 3, -1, 1),
    Sketcher.Constraint("Symmetric", 59, 3, 69, 3, -1, 1),
    Sketcher.Constraint("Symmetric", 57, 3, 71, 3, -1, 1),
    Sketcher.Constraint("Symmetric", 50, 3, 73, 3, -1, 1),
    Sketcher.Constraint("Symmetric", 48, 3, 75, 3, -1, 1),
    Sketcher.Constraint("Symmetric", 52, 3, 77, 3, -1, 1),
    Sketcher.Constraint("Symmetric", 54, 3, 79, 3, -1, 1),
    Sketcher.Constraint("Symmetric", 14, 3, 19, 3, -2),
    Sketcher.Constraint("Symmetric", 7, 3, 26, 3, -2),
    Sketcher.Constraint("Symmetric", 54, 3, 57, 3, -2),
    Sketcher.Constraint("Symmetric", 52, 3, 59, 3, -2),
    Sketcher.Constraint("Symmetric", 50, 3, 61, 3, -2),
    Sketcher.Constraint("Symmetric", 48, 3, 63, 3, -2),
    Sketcher.Constraint("Horizontal", 52, 3, 54, 3),
    Sketcher.Constraint("Horizontal", 79, 3, 16, 1),
    Sketcher.Constraint("Horizontal", 44, 2, 52, 1),
    Sketcher.Constraint("Horizontal", 53, 1, 54, 1),
    Sketcher.Constraint("Horizontal", 55, 1, 56, 1),
    Sketcher.Constraint("Horizontal", 57, 1, 58, 1),
    Sketcher.Constraint("Horizontal", 23, 2, 68, 1),
    Sketcher.Constraint("Horizontal", 69, 1, 70, 1),
    Sketcher.Constraint("Horizontal", 71, 1, 76, 1),
    Sketcher.Constraint("Horizontal", 77, 1, 78, 1),
    Sketcher.Constraint("Vertical", 48, 3, 50, 3),
    Sketcher.Constraint("Vertical", 67, 3, 0, 1),
    Sketcher.Constraint("Vertical", 8, 2, 48, 1),
    Sketcher.Constraint("Vertical", 49, 1, 50, 1),
    Sketcher.Constraint("Vertical", 35, 2, 60, 1),
    Sketcher.Constraint("Vertical", 61, 1, 62, 1),
    Sketcher.Constraint("Vertical", 51, 1, 64, 1),
    Sketcher.Constraint("Vertical", 65, 1, 66, 1),
    Sketcher.Constraint("Vertical", 63, 1, 72, 1),
    Sketcher.Constraint("Vertical", 73, 1, 74, 1),
    Sketcher.Constraint("Equal", 47, 53),
    Sketcher.Constraint("DistanceX", 48, 3, -1, 1, Q("0.5 in")),
    Sketcher.Constraint("DistanceY", -1, 1, 50, 3, Q("0.4 in")),
    Sketcher.Constraint("DistanceX", 52, 3, -1, 1, Q("0.4 in")),
    Sketcher.Constraint("DistanceY", -1, 1, 52, 3, Q("0.5 in")),
    Sketcher.Constraint("Radius", 0, Q("0.0435 in")),
    Sketcher.Constraint("DistanceY", -1, 1, 48, 3, Q("0.228 in")),
    Sketcher.Constraint("DistanceX", 54, 3, -1, 1, Q("0.228 in")),
    Sketcher.Constraint("DistanceY", -1, 1, 1, 2, Q("0.128 in")),
    Sketcher.Constraint("DistanceX", 12, 2, -1, 1, Q("0.128 in")),
])
pocket2 = body.newObject("PartDesign::Pocket", "Pocket001")
pocket2.Profile = sketch3
pocket2.Type = "ThroughAll"
doc.recompute()

fillet = body.newObject("PartDesign::Fillet", "Fillet")
fillet.Base = (pocket2, edges_at(pocket2, [
    (2.959, 4.521, 0),
    (-2.959, 4.521, 0),
    (-2.959, -4.521, 0),
    (2.959, -4.521, 0),
    (4.521, -2.959, 0),
    (4.521, 2.959, 0),
    (-4.521, 2.959, 0),
    (-4.521, -2.959, 0),
]))
fillet.Radius = Q("0.1 in")
doc.recompute()

fillet2 = body.newObject("PartDesign::Fillet", "Fillet001")
fillet2.Base = (fillet, edges_at(fillet, [
    (-12.7, 12.7, 0),
    (12.7, 12.7, 0),
    (12.7, -12.7, 0),
    (-12.7, -12.7, 0),
]))
fillet2.Radius = Q("0.07 in")

doc.recompute()
